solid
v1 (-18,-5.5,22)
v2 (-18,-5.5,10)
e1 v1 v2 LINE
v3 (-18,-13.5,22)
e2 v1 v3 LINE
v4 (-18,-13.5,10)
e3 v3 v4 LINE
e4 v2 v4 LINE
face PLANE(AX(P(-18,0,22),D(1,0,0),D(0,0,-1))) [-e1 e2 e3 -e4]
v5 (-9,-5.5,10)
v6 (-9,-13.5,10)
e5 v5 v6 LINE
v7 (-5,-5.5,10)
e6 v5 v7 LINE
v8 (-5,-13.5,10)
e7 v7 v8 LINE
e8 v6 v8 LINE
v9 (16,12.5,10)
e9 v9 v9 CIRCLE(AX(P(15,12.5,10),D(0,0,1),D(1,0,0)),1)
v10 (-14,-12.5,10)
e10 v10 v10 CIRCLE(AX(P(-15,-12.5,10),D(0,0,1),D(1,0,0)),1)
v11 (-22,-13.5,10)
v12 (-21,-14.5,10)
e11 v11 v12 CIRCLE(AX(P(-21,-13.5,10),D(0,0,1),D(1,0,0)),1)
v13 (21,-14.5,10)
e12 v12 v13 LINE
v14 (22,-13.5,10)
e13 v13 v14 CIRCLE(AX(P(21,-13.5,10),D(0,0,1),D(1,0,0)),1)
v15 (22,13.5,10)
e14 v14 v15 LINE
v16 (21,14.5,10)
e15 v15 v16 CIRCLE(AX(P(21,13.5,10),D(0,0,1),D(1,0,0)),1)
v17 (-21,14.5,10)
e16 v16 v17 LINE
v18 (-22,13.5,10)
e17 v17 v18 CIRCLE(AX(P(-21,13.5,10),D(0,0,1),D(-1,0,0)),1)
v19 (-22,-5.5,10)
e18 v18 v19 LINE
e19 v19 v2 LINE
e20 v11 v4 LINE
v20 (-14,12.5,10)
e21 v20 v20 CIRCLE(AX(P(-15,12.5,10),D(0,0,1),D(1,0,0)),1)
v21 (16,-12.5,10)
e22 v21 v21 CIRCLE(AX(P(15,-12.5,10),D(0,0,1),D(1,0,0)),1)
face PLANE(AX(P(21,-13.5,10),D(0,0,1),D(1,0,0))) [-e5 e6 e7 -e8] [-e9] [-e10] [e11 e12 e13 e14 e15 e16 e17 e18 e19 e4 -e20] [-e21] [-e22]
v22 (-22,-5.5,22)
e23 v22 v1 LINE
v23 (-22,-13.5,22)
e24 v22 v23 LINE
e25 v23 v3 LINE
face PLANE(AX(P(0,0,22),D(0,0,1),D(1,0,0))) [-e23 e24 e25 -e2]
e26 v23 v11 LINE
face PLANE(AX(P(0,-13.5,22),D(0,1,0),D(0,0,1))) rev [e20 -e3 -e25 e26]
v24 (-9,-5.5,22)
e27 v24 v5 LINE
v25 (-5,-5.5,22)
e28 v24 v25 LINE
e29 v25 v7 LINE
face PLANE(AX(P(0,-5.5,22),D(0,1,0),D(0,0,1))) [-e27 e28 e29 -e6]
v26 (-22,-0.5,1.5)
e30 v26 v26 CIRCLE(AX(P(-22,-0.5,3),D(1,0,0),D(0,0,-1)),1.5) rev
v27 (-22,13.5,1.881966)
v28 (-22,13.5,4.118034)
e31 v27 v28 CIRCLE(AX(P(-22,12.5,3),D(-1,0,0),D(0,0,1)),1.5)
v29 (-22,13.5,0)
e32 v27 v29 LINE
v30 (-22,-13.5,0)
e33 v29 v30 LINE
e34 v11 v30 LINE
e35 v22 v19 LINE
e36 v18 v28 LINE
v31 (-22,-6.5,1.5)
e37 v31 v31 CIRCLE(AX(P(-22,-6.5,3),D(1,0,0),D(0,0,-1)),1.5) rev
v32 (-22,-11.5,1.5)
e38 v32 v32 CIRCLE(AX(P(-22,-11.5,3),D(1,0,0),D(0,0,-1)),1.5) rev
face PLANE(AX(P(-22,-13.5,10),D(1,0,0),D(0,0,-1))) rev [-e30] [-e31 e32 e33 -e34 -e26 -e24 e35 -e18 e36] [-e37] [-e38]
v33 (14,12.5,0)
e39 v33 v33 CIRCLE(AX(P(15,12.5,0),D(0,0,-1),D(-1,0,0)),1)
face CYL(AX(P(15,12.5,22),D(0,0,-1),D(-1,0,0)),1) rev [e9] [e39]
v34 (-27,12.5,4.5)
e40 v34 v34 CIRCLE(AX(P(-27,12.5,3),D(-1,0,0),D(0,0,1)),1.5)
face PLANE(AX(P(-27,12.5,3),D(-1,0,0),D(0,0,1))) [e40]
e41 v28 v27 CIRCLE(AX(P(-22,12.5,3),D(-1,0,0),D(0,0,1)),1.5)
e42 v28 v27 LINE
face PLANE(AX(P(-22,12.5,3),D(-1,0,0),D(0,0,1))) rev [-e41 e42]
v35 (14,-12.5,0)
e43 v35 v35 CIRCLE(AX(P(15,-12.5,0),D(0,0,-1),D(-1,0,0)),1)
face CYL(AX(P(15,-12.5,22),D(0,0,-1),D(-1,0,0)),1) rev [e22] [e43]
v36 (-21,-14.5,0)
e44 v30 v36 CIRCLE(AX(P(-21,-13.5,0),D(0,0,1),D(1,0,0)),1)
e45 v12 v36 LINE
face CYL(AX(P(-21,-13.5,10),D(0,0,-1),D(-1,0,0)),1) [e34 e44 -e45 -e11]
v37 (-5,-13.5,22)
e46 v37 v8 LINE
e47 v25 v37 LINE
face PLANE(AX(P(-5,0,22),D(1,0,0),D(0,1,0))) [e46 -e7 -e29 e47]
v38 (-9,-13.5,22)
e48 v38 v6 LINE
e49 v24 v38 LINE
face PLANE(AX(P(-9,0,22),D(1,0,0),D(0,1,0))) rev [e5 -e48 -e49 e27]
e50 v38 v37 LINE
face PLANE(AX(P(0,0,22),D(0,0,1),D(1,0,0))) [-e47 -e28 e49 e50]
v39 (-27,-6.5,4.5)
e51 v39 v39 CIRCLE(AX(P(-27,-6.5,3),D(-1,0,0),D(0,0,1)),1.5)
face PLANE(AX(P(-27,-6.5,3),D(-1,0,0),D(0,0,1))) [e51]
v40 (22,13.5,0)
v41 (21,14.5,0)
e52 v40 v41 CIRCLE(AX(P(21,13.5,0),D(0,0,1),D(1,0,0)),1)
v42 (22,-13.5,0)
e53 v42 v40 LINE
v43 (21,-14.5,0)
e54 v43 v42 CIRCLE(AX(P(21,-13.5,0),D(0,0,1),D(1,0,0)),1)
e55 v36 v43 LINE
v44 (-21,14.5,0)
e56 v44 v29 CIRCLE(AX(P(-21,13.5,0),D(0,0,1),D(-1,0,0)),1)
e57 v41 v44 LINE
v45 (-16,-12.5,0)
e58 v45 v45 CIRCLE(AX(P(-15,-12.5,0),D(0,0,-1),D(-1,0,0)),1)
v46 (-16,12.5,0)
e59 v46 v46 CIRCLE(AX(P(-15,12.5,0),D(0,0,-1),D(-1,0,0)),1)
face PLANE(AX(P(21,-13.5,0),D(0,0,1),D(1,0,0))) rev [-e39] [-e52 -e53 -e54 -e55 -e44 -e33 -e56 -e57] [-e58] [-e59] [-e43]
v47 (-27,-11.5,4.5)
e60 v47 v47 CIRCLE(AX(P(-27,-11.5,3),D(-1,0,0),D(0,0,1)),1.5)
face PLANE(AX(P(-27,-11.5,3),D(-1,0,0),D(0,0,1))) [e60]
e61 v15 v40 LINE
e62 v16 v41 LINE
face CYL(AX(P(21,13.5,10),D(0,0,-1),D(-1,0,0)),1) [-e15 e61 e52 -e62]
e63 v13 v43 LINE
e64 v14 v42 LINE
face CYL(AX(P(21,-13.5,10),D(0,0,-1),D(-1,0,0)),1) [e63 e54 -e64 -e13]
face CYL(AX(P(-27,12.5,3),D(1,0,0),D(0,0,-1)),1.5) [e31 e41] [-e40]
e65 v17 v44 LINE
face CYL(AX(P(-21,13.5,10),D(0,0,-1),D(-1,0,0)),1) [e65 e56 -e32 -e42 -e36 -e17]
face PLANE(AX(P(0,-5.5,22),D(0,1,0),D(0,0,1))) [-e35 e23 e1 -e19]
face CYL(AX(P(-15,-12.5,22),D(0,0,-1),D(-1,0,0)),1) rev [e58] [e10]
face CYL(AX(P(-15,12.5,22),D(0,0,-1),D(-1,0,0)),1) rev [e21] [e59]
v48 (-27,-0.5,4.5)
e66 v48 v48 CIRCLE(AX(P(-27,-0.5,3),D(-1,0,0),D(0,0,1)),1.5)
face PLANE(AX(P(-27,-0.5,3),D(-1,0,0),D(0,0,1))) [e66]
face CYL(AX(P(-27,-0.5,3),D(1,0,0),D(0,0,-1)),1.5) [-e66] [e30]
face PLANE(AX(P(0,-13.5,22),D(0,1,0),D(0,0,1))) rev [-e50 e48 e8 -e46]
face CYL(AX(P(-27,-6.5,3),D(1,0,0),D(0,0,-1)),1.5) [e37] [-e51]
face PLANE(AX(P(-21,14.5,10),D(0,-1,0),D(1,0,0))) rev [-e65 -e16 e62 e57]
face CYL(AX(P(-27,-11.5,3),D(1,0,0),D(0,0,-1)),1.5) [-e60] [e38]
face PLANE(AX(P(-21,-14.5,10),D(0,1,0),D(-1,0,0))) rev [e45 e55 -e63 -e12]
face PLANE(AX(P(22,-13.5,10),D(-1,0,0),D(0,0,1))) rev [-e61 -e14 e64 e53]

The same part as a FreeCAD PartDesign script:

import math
import FreeCAD as App
import Part
import Sketcher


def add_polygon(sketch, points):
    """Adds a closed chain of lines whose ends are joined by coincident constraints."""
    first, n = sketch.GeometryCount, len(points)
    for a, b in zip(points, points[1:] + points[:1]):
        sketch.addGeometry(Part.LineSegment(App.Vector(*a, 0), App.Vector(*b, 0)), False)
    for i in range(n):
        sketch.addConstraint(Sketcher.Constraint("Coincident", first + i, 2, first + (i + 1) % n, 1))

doc = App.newDocument("Part")
body = doc.addObject("PartDesign::Body", "Body")

sketch1 = body.newObject("Sketcher::SketchObject", "Sketch")
sketch1.AttachmentSupport = (doc.getObject("XY_Plane"), [""])
sketch1.MapMode = "FlatFace"
sketch1.addGeometry(Part.LineSegment(App.Vector(-22, 13.5, 0), App.Vector(-22, -13.5, 0)), False)
sketch1.addGeometry(Part.ArcOfCircle(Part.Circle(App.Vector(-21, -13.5, 0), App.Vector(0, 0, 1), 1), math.radians(-180), math.radians(-90)), False)
sketch1.addGeometry(Part.LineSegment(App.Vector(-21, -14.5, 0), App.Vector(21, -14.5, 0)), False)
sketch1.addGeometry(Part.ArcOfCircle(Part.Circle(App.Vector(21, -13.5, 0), App.Vector(0, 0, 1), 1), math.radians(-90), math.radians(0)), False)
sketch1.addGeometry(Part.LineSegment(App.Vector(22, -13.5, 0), App.Vector(22, 13.5, 0)), False)
sketch1.addGeometry(Part.ArcOfCircle(Part.Circle(App.Vector(21, 13.5, 0), App.Vector(0, 0, 1), 1), math.radians(0), math.radians(90)), False)
sketch1.addGeometry(Part.LineSegment(App.Vector(21, 14.5, 0), App.Vector(-21, 14.5, 0)), False)
sketch1.addGeometry(Part.ArcOfCircle(Part.Circle(App.Vector(-21, 13.5, 0), App.Vector(0, 0, 1), 1), math.radians(90), math.radians(180)), False)
sketch1.addConstraint(Sketcher.Constraint("Tangent", 0, 2, 1, 1))
sketch1.addConstraint(Sketcher.Constraint("Tangent", 1, 2, 2, 1))
sketch1.addConstraint(Sketcher.Constraint("Tangent", 2, 2, 3, 1))
sketch1.addConstraint(Sketcher.Constraint("Tangent", 3, 2, 4, 1))
sketch1.addConstraint(Sketcher.Constraint("Tangent", 4, 2, 5, 1))
sketch1.addConstraint(Sketcher.Constraint("Tangent", 5, 2, 6, 1))
sketch1.addConstraint(Sketcher.Constraint("Tangent", 6, 2, 7, 1))
sketch1.addConstraint(Sketcher.Constraint("Tangent", 7, 2, 0, 1))
sketch1.addConstraint(Sketcher.Constraint("Vertical", 0))
sketch1.addConstraint(Sketcher.Constraint("Horizontal", 2))
sketch1.addConstraint(Sketcher.Constraint("Vertical", 4))
sketch1.addConstraint(Sketcher.Constraint("Horizontal", 6))
sketch1.addConstraint(Sketcher.Constraint("Equal", 1, 3))
sketch1.addConstraint(Sketcher.Constraint("Equal", 3, 5))
sketch1.addConstraint(Sketcher.Constraint("Equal", 5, 7))
sketch1.addConstraint(Sketcher.Constraint("Symmetric", 1, 3, 5, 3, -1, 1))
sketch1.addConstraint(Sketcher.Constraint("Radius", 1, 1.0))
sketch1.addConstraint(Sketcher.Constraint("DistanceX", 2, 1, 2, 2, 42.0))
sketch1.addConstraint(Sketcher.Constraint("DistanceY", 0, 2, 0, 1, 27.0))
pad1 = body.newObject("PartDesign::Pad", "Pad")
pad1.Profile = sketch1
pad1.Length = 10

sketch2 = body.newObject("Sketcher::SketchObject", "Sketch001")
sketch2.AttachmentSupport = (doc.getObject("YZ_Plane"), [""])
sketch2.MapMode = "FlatFace"
sketch2.AttachmentOffset = App.Placement(App.Vector(0, 0, -22), App.Rotation())
sketch2.addGeometry(Part.Circle(App.Vector(12.5, 3, 0), App.Vector(0, 0, 1), 1.5), False)
sketch2.addGeometry(Part.Circle(App.Vector(-0.5, 3, 0), App.Vector(0, 0, 1), 1.5), False)
sketch2.addGeometry(Part.Circle(App.Vector(-6.5, 3, 0), App.Vector(0, 0, 1), 1.5), False)
sketch2.addGeometry(Part.Circle(App.Vector(-11.5, 3, 0), App.Vector(0, 0, 1), 1.5), False)
sketch2.addConstraint(Sketcher.Constraint("Equal", 0, 1))
sketch2.addConstraint(Sketcher.Constraint("Equal", 1, 2))
sketch2.addConstraint(Sketcher.Constraint("Equal", 2, 3))
sketch2.addConstraint(Sketcher.Constraint("Horizontal", 0, 3, 1, 3))
sketch2.addConstraint(Sketcher.Constraint("Horizontal", 1, 3, 2, 3))
sketch2.addConstraint(Sketcher.Constraint("Horizontal", 2, 3, 3, 3))
sketch2.addConstraint(Sketcher.Constraint("Diameter", 0, 3.0))
sketch2.addConstraint(Sketcher.Constraint("DistanceY", -1, 1, 0, 3, 3.0))
sketch2.addConstraint(Sketcher.Constraint("DistanceX", 1, 3, 0, 3, 13.0))
sketch2.addConstraint(Sketcher.Constraint("DistanceX", 2, 3, 1, 3, 6.0))
sketch2.addConstraint(Sketcher.Constraint("DistanceX", 3, 3, 2, 3, 5.0))
sketch2.addConstraint(Sketcher.Constraint("DistanceX", -1, 1, 0, 3, 12.5))
pad2 = body.newObject("PartDesign::Pad", "Pad001")
pad2.Profile = sketch2
pad2.Length = 5
pad2.Reversed = True

sketch3 = body.newObject("Sketcher::SketchObject", "Sketch002")
sketch3.AttachmentSupport = (doc.getObject("XY_Plane"), [""])
sketch3.MapMode = "FlatFace"
sketch3.AttachmentOffset = App.Placement(App.Vector(0, 0, 10), App.Rotation())
add_polygon(sketch3, [(-9, -5.5), (-9, -13.5), (-5, -13.5), (-5, -5.5)])
add_polygon(sketch3, [(-22, -5.5), (-22, -13.5), (-18, -13.5), (-18, -5.5)])
sketch3.addConstraint(Sketcher.Constraint("Vertical", 0))
sketch3.addConstraint(Sketcher.Constraint("Horizontal", 1))
sketch3.addConstraint(Sketcher.Constraint("Vertical", 2))
sketch3.addConstraint(Sketcher.Constraint("Horizontal", 3))
sketch3.addConstraint(Sketcher.Constraint("Vertical", 4))
sketch3.addConstraint(Sketcher.Constraint("Horizontal", 5))
sketch3.addConstraint(Sketcher.Constraint("Vertical", 6))
sketch3.addConstraint(Sketcher.Constraint("Horizontal", 7))
sketch3.addConstraint(Sketcher.Constraint("Horizontal", 1, 2, 4, 2))
sketch3.addConstraint(Sketcher.Constraint("Horizontal", 3, 2, 6, 2))
sketch3.addConstraint(Sketcher.Constraint("Equal", 3, 5))
sketch3.addConstraint(Sketcher.Constraint("DistanceX", 1, 1, 1, 2, 4.0))
sketch3.addConstraint(Sketcher.Constraint("DistanceY", 0, 2, 0, 1, 8.0))
sketch3.addConstraint(Sketcher.Constraint("DistanceX", 0, 2, -1, 1, 9.0))
sketch3.addConstraint(Sketcher.Constraint("DistanceX", 4, 2, -1, 1, 22.0))
sketch3.addConstraint(Sketcher.Constraint("DistanceY", 0, 2, -1, 1, 13.5))
pad3 = body.newObject("PartDesign::Pad", "Pad002")
pad3.Profile = sketch3
pad3.Length = 12

sketch4 = body.newObject("Sketcher::SketchObject", "Sketch003")
sketch4.AttachmentSupport = (doc.getObject("XY_Plane"), [""])
sketch4.MapMode = "FlatFace"
sketch4.addGeometry(Part.Circle(App.Vector(-15, -12.5, 0), App.Vector(0, 0, 1), 1), False)
sketch4.addGeometry(Part.Circle(App.Vector(15, -12.5, 0), App.Vector(0, 0, 1), 1), False)
sketch4.addGeometry(Part.Circle(App.Vector(15, 12.5, 0), App.Vector(0, 0, 1), 1), False)
sketch4.addGeometry(Part.Circle(App.Vector(-15, 12.5, 0), App.Vector(0, 0, 1), 1), False)
sketch4.addConstraint(Sketcher.Constraint("Equal", 0, 1))
sketch4.addConstraint(Sketcher.Constraint("Equal", 1, 2))
sketch4.addConstraint(Sketcher.Constraint("Equal", 2, 3))
sketch4.addConstraint(Sketcher.Constraint("Symmetric", 0, 3, 2, 3, -1, 1))
sketch4.addConstraint(Sketcher.Constraint("Symmetric", 1, 3, 3, 3, -1, 1))
sketch4.addConstraint(Sketcher.Constraint("Symmetric", 0, 3, 1, 3, -2))
sketch4.addConstraint(Sketcher.Constraint("Diameter", 0, 2.0))
sketch4.addConstraint(Sketcher.Constraint("DistanceX", 0, 3, -1, 1, 15.0))
sketch4.addConstraint(Sketcher.Constraint("DistanceY", 1, 3, 2, 3, 25.0))
pocket1 = body.newObject("PartDesign::Pocket", "Pocket")
pocket1.Profile = sketch4
pocket1.Type = "ThroughAll"
pocket1.Reversed = True

doc.recompute()
